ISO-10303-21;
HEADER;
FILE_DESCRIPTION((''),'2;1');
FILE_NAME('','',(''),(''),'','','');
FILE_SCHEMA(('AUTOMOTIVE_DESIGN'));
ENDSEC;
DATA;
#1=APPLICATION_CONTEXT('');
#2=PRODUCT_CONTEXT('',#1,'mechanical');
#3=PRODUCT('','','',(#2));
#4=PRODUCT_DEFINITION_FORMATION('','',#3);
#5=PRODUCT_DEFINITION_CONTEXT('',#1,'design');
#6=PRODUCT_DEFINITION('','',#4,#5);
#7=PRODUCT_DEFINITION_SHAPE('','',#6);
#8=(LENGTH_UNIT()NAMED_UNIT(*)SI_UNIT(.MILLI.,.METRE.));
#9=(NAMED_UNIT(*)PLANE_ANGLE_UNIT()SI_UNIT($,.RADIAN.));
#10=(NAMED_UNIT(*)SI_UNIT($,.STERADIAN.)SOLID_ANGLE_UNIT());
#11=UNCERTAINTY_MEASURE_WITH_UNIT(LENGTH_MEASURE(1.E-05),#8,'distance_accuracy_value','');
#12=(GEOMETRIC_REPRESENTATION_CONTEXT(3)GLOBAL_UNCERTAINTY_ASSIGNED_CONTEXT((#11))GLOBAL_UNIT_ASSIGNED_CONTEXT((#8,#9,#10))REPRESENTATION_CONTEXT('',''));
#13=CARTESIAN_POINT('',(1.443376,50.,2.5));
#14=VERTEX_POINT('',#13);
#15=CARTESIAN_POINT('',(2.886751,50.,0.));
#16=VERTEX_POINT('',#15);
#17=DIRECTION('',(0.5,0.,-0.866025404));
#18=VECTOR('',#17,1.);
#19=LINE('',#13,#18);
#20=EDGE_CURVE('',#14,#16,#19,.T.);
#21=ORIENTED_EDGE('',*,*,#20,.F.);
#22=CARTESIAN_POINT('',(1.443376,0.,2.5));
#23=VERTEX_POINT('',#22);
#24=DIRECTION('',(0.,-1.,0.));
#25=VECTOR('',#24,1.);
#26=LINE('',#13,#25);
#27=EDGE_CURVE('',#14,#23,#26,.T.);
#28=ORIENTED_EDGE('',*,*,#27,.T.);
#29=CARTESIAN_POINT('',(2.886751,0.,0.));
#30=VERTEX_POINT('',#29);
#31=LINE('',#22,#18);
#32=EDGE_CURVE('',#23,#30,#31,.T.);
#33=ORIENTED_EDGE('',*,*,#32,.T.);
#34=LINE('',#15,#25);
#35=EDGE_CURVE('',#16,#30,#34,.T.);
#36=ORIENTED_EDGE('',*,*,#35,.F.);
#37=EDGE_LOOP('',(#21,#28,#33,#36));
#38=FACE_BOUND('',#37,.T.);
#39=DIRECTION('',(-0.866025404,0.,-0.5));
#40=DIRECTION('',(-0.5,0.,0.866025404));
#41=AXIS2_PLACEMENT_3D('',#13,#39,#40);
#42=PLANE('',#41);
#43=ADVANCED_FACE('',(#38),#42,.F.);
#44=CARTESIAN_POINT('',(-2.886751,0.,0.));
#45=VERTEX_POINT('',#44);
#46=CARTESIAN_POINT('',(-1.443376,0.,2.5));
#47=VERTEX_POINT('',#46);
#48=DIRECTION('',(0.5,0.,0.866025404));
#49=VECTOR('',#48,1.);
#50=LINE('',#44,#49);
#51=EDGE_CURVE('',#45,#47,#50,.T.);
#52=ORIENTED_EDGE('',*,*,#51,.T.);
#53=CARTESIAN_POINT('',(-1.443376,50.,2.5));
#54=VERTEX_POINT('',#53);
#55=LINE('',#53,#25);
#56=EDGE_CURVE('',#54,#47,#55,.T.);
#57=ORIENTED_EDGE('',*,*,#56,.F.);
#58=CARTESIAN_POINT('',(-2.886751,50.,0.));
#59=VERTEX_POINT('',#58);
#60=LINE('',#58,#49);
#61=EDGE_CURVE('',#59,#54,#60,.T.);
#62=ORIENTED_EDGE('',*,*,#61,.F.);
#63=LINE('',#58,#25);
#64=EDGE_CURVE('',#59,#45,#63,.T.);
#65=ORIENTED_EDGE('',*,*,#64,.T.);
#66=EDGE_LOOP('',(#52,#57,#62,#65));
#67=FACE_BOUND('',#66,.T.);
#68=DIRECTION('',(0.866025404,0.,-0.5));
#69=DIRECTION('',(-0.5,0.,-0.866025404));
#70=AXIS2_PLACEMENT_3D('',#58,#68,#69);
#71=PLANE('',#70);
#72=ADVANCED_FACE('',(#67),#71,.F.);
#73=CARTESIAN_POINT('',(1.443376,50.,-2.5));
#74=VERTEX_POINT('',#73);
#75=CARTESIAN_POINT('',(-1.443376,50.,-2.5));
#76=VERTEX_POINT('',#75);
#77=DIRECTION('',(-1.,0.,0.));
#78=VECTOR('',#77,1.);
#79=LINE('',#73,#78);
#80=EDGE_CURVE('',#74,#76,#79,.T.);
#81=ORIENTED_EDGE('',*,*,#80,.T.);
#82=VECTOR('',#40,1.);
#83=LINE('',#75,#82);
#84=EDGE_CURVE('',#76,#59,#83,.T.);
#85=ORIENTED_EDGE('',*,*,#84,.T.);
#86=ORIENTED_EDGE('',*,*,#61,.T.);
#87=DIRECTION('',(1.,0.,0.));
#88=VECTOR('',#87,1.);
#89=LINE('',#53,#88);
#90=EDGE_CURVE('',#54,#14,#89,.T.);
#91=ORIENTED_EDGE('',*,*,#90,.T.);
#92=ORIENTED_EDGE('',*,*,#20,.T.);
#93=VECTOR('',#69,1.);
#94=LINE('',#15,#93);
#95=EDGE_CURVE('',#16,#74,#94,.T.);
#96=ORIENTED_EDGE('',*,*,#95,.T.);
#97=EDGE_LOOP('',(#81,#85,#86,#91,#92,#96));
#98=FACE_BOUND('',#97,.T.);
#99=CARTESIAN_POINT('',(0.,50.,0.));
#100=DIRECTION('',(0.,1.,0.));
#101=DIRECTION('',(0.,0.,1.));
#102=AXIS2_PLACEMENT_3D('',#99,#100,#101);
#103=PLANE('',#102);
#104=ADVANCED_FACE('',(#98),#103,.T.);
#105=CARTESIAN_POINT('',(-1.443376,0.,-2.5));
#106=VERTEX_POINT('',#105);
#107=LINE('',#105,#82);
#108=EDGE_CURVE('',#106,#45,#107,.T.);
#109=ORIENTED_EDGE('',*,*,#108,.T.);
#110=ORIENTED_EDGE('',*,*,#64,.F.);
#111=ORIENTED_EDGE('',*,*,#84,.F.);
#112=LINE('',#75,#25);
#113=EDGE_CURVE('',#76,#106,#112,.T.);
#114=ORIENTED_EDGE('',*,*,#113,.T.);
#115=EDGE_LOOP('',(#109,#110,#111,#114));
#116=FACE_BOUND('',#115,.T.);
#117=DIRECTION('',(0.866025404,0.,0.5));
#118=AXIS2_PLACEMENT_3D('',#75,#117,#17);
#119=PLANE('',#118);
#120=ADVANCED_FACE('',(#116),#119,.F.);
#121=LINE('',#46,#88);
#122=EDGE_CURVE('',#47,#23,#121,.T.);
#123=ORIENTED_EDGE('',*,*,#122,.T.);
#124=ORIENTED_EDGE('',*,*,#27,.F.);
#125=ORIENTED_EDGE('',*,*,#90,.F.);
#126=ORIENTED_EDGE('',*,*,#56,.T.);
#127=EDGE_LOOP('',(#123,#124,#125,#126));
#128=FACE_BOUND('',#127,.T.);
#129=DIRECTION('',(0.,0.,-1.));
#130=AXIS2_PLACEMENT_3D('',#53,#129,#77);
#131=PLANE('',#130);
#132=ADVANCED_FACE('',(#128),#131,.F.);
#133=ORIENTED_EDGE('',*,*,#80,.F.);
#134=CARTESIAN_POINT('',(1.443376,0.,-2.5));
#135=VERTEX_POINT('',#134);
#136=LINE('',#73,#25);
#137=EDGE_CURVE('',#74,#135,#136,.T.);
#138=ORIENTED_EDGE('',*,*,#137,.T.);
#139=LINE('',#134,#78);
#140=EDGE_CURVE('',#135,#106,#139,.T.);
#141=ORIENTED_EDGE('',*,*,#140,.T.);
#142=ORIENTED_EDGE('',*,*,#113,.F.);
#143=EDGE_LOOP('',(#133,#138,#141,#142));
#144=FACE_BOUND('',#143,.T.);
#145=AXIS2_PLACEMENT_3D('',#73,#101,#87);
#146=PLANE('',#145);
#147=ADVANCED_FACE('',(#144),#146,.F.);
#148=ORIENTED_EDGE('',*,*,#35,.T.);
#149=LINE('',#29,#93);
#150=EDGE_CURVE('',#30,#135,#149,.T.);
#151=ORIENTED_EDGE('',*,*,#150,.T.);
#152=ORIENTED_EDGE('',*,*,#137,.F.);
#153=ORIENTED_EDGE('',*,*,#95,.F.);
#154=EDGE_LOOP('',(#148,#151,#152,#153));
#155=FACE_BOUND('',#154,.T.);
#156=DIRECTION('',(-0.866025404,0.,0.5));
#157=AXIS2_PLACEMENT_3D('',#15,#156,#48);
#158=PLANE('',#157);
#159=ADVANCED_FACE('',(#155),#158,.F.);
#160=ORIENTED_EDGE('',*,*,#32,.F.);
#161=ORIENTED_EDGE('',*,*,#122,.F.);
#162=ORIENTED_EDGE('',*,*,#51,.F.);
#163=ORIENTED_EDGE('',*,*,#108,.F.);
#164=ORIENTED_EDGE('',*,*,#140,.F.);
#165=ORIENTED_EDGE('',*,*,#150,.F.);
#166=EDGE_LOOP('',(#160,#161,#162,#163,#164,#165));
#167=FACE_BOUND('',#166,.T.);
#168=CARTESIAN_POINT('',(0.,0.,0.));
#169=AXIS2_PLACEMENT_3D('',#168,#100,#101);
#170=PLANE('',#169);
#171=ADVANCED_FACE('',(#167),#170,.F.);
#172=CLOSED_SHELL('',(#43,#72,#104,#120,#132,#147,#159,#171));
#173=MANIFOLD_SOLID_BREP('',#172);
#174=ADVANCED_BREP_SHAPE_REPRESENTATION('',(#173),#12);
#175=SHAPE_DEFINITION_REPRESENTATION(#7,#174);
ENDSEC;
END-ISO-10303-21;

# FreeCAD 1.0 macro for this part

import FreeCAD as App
import Part
import Sketcher
from FreeCAD import Vector
Q = App.Units.Quantity

doc = App.newDocument("Part")
body = doc.addObject("PartDesign::Body", "Body")

sketch1 = body.newObject("Sketcher::SketchObject", "Sketch")
sketch1.AttachmentSupport = (doc.getObject("XZ_Plane"), [""])
sketch1.MapMode = "FlatFace"
sketch1.addGeometry([
    Part.LineSegment(Vector(2.9, 0, 0), Vector(1.4, -2.5, 0)),
    Part.LineSegment(Vector(1.4, -2.5, 0), Vector(-1.4, -2.5, 0)),
    Part.LineSegment(Vector(-1.4, -2.5, 0), Vector(-2.9, 0, 0)),
    Part.LineSegment(Vector(-2.9, 0, 0), Vector(-1.4, 2.5, 0)),
    Part.LineSegment(Vector(-1.4, 2.5, 0), Vector(1.4, 2.5, 0)),
    Part.LineSegment(Vector(1.4, 2.5, 0), Vector(2.9, 0, 0)),
], False)
sketch1.addConstraint([
    Sketcher.Constraint("Coincident", 0, 2, 1, 1),
    Sketcher.Constraint("Coincident", 1, 2, 2, 1),
    Sketcher.Constraint("Coincident", 2, 2, 3, 1),
    Sketcher.Constraint("Coincident", 3, 2, 4, 1),
    Sketcher.Constraint("Coincident", 4, 2, 5, 1),
    Sketcher.Constraint("Coincident", 5, 2, 0, 1),
    Sketcher.Constraint("Horizontal", 1),
    Sketcher.Constraint("Horizontal", 4),
    Sketcher.Constraint("Symmetric", 0, 2, 3, 2, -1, 1),
    Sketcher.Constraint("Symmetric", 2, 2, 5, 2, -1, 1),
    Sketcher.Constraint("PointOnObject", 2, 2, -1),
    Sketcher.Constraint("Parallel", 2, 5),
    Sketcher.Constraint("Vertical", 1, 2, 3, 2),
    Sketcher.Constraint("Angle", 0, Q("-120 deg")),
    Sketcher.Constraint("DistanceY", 1, 2, 3, 2, Q("5 mm")),
    Sketcher.Constraint("DistanceX", 1, 2, 1, 1, Q("2.886751 mm")),
])
pad1 = body.newObject("PartDesign::Pad", "Pad")
pad1.Profile = sketch1
pad1.Length = 50
pad1.Reversed = True

doc.recompute()
